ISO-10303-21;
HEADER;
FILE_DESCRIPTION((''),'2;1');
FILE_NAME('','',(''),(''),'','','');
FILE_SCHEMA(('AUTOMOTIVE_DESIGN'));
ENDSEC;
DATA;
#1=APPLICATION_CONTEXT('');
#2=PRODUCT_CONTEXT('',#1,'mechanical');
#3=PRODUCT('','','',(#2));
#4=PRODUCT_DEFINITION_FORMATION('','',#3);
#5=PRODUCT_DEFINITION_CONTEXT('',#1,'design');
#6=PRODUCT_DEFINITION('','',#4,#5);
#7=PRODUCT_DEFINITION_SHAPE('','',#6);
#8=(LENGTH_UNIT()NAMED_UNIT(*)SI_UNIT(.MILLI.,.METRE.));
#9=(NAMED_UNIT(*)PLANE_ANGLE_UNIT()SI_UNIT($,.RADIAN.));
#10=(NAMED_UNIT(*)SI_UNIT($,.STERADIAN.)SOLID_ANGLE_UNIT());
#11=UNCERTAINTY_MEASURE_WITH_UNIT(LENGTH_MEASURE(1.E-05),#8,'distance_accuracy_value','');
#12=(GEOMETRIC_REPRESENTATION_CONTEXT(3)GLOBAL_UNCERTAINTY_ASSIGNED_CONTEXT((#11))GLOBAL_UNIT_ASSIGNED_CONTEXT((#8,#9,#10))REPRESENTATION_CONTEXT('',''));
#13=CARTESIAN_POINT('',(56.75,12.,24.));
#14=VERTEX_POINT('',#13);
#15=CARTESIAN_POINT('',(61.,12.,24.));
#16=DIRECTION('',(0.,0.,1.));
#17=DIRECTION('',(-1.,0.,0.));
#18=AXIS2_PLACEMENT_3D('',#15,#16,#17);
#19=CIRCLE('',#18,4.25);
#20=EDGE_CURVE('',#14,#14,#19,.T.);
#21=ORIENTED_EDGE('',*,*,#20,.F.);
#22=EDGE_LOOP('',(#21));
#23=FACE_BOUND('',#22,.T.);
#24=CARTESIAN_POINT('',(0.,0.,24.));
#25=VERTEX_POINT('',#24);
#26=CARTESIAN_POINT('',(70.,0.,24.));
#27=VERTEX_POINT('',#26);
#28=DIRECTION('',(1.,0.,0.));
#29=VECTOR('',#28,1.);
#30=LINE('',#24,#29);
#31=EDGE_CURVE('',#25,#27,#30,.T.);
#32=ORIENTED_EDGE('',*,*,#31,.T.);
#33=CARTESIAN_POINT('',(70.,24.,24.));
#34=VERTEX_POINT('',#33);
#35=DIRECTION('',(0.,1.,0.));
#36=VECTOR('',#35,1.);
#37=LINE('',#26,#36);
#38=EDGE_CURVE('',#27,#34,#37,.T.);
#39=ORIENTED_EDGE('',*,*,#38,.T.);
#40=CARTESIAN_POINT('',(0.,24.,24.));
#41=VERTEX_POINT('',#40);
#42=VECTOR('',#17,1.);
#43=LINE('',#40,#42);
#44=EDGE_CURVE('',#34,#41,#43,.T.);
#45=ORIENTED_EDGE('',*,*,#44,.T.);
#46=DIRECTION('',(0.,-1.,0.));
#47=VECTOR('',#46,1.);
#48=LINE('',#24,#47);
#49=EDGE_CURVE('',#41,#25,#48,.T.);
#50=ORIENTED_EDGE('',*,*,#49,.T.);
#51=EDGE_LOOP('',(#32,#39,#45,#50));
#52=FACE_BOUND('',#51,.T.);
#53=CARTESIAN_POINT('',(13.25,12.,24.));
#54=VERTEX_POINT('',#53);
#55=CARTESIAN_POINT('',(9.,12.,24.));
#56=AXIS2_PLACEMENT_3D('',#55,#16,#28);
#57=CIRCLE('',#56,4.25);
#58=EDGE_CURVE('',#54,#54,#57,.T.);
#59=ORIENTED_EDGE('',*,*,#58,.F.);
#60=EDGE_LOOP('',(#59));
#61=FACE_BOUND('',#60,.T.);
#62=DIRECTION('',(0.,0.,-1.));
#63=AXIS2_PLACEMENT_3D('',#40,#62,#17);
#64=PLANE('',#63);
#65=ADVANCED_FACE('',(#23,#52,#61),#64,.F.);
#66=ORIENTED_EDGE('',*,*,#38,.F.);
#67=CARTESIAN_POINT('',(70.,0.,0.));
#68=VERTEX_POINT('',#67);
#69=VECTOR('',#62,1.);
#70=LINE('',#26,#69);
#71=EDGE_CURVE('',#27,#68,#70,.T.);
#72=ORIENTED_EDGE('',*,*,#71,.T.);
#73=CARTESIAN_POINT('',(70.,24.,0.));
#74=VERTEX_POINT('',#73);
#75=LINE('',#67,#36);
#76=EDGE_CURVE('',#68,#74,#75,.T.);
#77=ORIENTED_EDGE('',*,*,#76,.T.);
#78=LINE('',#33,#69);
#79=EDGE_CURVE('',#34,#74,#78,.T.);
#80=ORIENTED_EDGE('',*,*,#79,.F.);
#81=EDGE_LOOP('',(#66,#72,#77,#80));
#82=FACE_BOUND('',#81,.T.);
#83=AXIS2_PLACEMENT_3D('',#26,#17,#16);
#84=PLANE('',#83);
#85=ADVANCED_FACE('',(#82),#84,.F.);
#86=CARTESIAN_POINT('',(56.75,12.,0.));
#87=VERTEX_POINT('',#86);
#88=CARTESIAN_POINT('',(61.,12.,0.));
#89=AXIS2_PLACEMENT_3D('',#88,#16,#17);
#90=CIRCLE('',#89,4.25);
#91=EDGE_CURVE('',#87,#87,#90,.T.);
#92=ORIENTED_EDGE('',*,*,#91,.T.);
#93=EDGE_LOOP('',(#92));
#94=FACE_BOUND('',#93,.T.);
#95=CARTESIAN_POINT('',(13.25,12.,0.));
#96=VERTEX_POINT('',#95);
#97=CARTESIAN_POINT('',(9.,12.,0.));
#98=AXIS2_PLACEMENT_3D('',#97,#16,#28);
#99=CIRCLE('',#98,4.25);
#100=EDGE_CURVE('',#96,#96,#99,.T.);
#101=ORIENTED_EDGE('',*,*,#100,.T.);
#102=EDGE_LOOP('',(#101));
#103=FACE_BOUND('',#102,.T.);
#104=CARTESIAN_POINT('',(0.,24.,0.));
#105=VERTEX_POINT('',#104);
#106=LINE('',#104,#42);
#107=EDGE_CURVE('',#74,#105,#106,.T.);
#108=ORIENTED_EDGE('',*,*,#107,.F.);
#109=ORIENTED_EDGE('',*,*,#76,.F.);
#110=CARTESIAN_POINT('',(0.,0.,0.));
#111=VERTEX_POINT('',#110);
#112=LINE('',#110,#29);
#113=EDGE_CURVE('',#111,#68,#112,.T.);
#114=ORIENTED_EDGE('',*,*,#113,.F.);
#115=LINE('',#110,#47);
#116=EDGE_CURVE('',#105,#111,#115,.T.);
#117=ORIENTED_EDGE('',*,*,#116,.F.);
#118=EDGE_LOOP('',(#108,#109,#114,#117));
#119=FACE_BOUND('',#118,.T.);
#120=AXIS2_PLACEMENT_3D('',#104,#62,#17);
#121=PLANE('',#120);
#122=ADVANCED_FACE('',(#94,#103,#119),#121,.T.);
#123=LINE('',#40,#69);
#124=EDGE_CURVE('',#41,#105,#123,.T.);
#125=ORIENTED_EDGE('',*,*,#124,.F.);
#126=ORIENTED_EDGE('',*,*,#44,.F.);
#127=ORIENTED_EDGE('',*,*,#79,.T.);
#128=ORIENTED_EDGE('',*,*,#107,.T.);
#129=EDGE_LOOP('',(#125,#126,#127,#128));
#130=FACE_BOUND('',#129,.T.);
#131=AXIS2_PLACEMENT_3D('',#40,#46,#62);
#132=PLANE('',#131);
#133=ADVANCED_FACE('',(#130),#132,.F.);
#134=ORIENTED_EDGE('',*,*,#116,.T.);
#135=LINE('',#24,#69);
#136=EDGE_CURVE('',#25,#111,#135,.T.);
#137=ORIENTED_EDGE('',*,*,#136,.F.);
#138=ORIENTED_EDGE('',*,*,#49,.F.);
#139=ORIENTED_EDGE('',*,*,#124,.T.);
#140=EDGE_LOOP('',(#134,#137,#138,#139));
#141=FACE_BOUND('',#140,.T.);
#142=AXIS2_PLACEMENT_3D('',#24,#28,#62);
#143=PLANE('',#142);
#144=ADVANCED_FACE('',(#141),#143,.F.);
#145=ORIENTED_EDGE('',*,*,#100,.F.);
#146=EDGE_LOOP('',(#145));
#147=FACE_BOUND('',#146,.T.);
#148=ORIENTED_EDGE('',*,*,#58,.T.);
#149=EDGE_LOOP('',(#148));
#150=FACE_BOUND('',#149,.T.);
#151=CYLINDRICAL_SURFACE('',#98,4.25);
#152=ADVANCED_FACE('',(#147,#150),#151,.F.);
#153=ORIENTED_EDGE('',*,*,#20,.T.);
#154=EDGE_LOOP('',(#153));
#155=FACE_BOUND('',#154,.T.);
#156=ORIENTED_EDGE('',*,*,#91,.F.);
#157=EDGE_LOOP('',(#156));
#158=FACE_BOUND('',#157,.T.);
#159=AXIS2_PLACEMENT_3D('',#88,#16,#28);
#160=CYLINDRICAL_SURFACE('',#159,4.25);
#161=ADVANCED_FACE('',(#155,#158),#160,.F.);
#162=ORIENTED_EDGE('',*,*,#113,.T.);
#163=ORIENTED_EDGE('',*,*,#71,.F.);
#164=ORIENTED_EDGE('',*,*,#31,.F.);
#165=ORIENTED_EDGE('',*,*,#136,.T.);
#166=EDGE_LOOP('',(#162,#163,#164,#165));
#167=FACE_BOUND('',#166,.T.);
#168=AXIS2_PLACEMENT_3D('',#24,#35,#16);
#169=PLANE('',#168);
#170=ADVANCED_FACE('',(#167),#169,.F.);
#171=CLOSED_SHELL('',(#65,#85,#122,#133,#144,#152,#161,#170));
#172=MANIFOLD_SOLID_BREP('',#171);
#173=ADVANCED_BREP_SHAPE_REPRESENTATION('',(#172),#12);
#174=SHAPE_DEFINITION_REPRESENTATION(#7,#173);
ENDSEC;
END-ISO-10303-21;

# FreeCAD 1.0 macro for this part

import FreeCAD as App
import Part
import Sketcher
Q = App.Units.Quantity

doc = App.newDocument("Part")
body = doc.addObject("PartDesign::Body", "Body")

sketch1 = doc.addObject("Sketcher::SketchObject", "Sketch")
body.addObject(sketch1)
sketch1.AttachmentSupport = (doc.XY_Plane, [""])
sketch1.MapMode = "FlatFace"
sketch1.addGeometry(Part.LineSegment(App.Vector(0, 24, 0), App.Vector(0, 0, 0)), False)
sketch1.addGeometry(Part.LineSegment(App.Vector(0, 0, 0), App.Vector(70, 0, 0)), False)
sketch1.addGeometry(Part.LineSegment(App.Vector(70, 0, 0), App.Vector(70, 24, 0)), False)
sketch1.addGeometry(Part.LineSegment(App.Vector(70, 24, 0), App.Vector(0, 24, 0)), False)
sketch1.addConstraint(Sketcher.Constraint("Coincident", 0, 2, 1, 1))
sketch1.addConstraint(Sketcher.Constraint("Coincident", 1, 2, 2, 1))
sketch1.addConstraint(Sketcher.Constraint("Coincident", 2, 2, 3, 1))
sketch1.addConstraint(Sketcher.Constraint("Coincident", 3, 2, 0, 1))
sketch1.addConstraint(Sketcher.Constraint("Vertical", 0))
sketch1.addConstraint(Sketcher.Constraint("Horizontal", 1))
sketch1.addConstraint(Sketcher.Constraint("Vertical", 2))
sketch1.addConstraint(Sketcher.Constraint("Horizontal", 3))
sketch1.addConstraint(Sketcher.Constraint("Coincident", 0, 2, -1, 1))
sketch1.addConstraint(Sketcher.Constraint("DistanceX", 1, 1, 1, 2, Q("70 mm")))
sketch1.addConstraint(Sketcher.Constraint("DistanceY", 0, 2, 0, 1, Q("24 mm")))
pad1 = doc.addObject("PartDesign::Pad", "Pad")
body.addObject(pad1)
pad1.Profile = sketch1
pad1.Length = 24

sketch2 = doc.addObject("Sketcher::SketchObject", "Sketch001")
body.addObject(sketch2)
sketch2.AttachmentSupport = (doc.XY_Plane, [""])
sketch2.MapMode = "FlatFace"
sketch2.AttachmentOffset = App.Placement(App.Vector(0, 0, 24), App.Rotation())
sketch2.addGeometry(Part.Circle(App.Vector(9, 12, 0), App.Vector(0, 0, 1), 4.2), False)
sketch2.addGeometry(Part.Circle(App.Vector(61, 12, 0), App.Vector(0, 0, 1), 4.2), False)
sketch2.addConstraint(Sketcher.Constraint("Equal", 0, 1))
sketch2.addConstraint(Sketcher.Constraint("Horizontal", 0, 3, 1, 3))
sketch2.addConstraint(Sketcher.Constraint("Diameter", 0, Q("8.5 mm")))
sketch2.addConstraint(Sketcher.Constraint("DistanceX", -1, 1, 0, 3, Q("9 mm")))
sketch2.addConstraint(Sketcher.Constraint("DistanceY", -1, 1, 0, 3, Q("12 mm")))
sketch2.addConstraint(Sketcher.Constraint("DistanceX", -1, 1, 1, 3, Q("61 mm")))
pocket1 = doc.addObject("PartDesign::Pocket", "Pocket")
body.addObject(pocket1)
pocket1.Profile = sketch2
pocket1.Type = "ThroughAll"

doc.recompute()
